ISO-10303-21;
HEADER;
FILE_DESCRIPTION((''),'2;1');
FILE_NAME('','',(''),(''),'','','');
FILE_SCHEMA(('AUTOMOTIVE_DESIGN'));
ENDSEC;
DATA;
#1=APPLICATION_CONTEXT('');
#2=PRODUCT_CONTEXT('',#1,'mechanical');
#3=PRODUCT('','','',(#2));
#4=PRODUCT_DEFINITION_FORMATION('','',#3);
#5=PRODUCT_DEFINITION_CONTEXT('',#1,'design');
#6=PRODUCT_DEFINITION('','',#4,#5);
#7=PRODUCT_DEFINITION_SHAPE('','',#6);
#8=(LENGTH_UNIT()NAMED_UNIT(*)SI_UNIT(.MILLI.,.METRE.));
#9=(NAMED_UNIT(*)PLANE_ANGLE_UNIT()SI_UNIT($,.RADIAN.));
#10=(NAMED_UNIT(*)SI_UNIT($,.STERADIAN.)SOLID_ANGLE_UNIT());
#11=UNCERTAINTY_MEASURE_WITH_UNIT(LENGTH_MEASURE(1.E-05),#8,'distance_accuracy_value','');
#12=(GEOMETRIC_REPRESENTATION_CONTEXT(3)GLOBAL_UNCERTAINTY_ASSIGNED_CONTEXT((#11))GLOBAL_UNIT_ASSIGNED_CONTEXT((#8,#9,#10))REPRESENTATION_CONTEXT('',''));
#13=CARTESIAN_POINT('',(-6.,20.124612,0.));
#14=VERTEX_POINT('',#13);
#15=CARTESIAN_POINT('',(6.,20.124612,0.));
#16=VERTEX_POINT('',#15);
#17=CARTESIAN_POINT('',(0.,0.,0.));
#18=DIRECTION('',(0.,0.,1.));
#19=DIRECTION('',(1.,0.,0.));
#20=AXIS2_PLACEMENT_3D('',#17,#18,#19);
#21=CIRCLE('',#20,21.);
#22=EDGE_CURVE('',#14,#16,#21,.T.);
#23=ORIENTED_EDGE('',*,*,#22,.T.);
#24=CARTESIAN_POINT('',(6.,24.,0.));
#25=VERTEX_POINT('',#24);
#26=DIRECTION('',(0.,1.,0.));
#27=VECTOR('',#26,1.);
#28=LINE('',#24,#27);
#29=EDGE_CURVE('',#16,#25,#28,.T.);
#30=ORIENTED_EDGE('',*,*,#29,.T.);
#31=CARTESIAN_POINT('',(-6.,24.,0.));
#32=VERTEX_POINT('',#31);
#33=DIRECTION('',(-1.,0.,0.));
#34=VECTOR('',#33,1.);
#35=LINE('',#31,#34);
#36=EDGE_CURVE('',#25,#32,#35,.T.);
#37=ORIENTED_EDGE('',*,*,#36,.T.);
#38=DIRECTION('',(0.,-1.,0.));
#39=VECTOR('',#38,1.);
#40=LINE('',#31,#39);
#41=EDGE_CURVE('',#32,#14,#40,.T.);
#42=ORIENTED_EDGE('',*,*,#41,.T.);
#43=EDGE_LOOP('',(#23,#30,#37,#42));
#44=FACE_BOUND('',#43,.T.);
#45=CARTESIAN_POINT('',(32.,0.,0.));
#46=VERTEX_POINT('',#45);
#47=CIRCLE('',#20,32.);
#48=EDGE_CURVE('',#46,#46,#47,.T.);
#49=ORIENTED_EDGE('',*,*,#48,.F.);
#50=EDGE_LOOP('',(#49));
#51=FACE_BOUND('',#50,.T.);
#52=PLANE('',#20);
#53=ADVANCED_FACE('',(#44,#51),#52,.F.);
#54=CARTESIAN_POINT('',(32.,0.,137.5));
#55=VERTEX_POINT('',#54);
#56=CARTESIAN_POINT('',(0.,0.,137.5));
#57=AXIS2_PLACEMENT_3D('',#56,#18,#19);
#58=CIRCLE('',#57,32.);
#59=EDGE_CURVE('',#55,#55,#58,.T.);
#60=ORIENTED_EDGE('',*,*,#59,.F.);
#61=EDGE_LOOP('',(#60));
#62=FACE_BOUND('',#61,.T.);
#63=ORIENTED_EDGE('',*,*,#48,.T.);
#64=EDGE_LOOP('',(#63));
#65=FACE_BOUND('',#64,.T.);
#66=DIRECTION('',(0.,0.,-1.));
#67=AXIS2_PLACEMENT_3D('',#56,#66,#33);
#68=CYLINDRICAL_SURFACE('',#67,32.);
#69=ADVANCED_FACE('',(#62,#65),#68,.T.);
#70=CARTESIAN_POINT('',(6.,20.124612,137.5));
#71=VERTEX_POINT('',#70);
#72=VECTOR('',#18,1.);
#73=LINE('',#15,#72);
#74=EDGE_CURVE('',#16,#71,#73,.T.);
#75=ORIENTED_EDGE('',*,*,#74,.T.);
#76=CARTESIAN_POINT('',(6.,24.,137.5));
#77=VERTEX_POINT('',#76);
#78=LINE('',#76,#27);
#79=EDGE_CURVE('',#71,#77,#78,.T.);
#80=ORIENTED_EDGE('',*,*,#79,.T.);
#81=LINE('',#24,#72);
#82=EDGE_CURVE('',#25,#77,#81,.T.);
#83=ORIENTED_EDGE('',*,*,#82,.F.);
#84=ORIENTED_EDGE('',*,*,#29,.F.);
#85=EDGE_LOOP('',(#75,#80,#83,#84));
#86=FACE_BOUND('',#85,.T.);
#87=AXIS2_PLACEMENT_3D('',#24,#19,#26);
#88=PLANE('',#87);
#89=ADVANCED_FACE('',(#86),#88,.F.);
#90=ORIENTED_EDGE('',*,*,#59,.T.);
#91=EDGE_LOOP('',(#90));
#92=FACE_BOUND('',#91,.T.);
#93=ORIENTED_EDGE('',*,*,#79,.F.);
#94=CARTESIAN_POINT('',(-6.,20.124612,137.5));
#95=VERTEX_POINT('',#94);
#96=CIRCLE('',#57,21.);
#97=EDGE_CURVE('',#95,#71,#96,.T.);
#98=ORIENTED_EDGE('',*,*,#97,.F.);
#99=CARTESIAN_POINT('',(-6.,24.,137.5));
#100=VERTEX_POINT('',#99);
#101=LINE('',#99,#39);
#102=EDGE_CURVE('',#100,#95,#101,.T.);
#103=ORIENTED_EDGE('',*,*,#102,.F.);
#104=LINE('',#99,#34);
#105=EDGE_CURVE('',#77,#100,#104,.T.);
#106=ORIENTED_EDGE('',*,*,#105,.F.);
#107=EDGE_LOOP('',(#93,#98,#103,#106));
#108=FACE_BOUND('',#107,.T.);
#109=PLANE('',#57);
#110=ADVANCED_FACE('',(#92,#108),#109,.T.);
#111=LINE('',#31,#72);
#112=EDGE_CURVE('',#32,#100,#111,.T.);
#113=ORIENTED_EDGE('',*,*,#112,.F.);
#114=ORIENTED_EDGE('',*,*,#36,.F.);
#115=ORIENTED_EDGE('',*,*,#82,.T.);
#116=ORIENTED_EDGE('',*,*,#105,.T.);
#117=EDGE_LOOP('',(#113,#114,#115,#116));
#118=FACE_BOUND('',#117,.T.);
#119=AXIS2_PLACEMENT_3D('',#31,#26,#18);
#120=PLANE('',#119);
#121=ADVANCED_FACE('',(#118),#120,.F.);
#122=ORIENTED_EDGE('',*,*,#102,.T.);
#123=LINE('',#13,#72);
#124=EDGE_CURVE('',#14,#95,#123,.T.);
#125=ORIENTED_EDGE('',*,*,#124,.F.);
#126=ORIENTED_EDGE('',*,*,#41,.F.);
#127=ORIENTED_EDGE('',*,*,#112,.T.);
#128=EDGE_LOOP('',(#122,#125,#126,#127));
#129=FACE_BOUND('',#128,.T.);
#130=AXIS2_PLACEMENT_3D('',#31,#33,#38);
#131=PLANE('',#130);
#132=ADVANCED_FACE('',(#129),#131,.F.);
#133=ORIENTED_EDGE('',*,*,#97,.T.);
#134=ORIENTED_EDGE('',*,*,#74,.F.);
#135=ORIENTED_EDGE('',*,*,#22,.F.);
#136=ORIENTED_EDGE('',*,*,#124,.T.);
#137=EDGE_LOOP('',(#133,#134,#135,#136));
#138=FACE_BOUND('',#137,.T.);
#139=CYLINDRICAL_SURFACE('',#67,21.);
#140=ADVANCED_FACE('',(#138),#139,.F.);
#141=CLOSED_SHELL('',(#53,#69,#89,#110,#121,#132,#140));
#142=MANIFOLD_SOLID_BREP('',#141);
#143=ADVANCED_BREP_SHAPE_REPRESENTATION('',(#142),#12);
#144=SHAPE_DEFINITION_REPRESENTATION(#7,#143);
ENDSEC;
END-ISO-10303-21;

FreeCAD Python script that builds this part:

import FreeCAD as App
import Part
import Sketcher

V = App.Vector
Q = App.Units.Quantity

doc = App.newDocument("Part")
params = doc.addObject("Spreadsheet::Sheet", "Params")
for row, (alias, value) in enumerate([
    ("sketch1_diameter", "64 mm"),
    ("sketch1_diameter2", "42 mm"),
    ("pad1_length", "137.5 mm"),
    ("sketch2_width", "12 mm"),
], start=1):
    params.set(f"A{row}", alias)
    params.set(f"B{row}", "=" + value)
    params.setAlias(f"B{row}", alias)

body = doc.addObject("PartDesign::Body", "Body")

sketch1 = body.newObject("Sketcher::SketchObject", "Sketch")
sketch1.AttachmentSupport = (doc.getObject("XY_Plane"), [""])
sketch1.MapMode = "FlatFace"
sketch1.addGeometry(Part.Circle(V(0, 0, 0), V(0, 0, 1), 32), False)
sketch1.addGeometry(Part.Circle(V(0, 0, 0), V(0, 0, 1), 21), False)
sketch1.addConstraint(Sketcher.Constraint("Coincident", 0, 3, -1, 1))
sketch1.addConstraint(Sketcher.Constraint("Coincident", 1, 3, -1, 1))
sketch1.addConstraint(Sketcher.Constraint("Diameter", 0, Q("64 mm")))
sketch1.addConstraint(Sketcher.Constraint("Diameter", 1, Q("42 mm")))
sketch1.setExpression("Constraints[2]", "Params.sketch1_diameter")
sketch1.setExpression("Constraints[3]", "Params.sketch1_diameter2")
pad1 = body.newObject("PartDesign::Pad", "Pad")
pad1.Profile = sketch1
pad1.setExpression("Length", "Params.pad1_length")

sketch2 = body.newObject("Sketcher::SketchObject", "Sketch001")
sketch2.AttachmentSupport = (doc.getObject("XY_Plane"), [""])
sketch2.MapMode = "FlatFace"
sketch2.AttachmentOffset = App.Placement(V(0, 0, 137.5), App.Rotation())
sketch2.addGeometry(Part.LineSegment(V(-6, 24, 0), V(-6, 20.1, 0)), False)
sketch2.addGeometry(Part.LineSegment(V(-6, 20.1, 0), V(6, 20.1, 0)), False)
sketch2.addGeometry(Part.LineSegment(V(6, 20.1, 0), V(6, 24, 0)), False)
sketch2.addGeometry(Part.LineSegment(V(6, 24, 0), V(-6, 24, 0)), False)
sketch2.addConstraint(Sketcher.Constraint("Coincident", 0, 2, 1, 1))
sketch2.addConstraint(Sketcher.Constraint("Coincident", 1, 2, 2, 1))
sketch2.addConstraint(Sketcher.Constraint("Coincident", 2, 2, 3, 1))
sketch2.addConstraint(Sketcher.Constraint("Coincident", 3, 2, 0, 1))
sketch2.addConstraint(Sketcher.Constraint("Vertical", 0))
sketch2.addConstraint(Sketcher.Constraint("Horizontal", 1))
sketch2.addConstraint(Sketcher.Constraint("Vertical", 2))
sketch2.addConstraint(Sketcher.Constraint("Horizontal", 3))
sketch2.addConstraint(Sketcher.Constraint("DistanceX", 1, 1, 1, 2, Q("12 mm")))
sketch2.addConstraint(Sketcher.Constraint("DistanceX", 0, 2, -1, 1, Q("6 mm")))
sketch2.addConstraint(Sketcher.Constraint("DistanceY", -1, 1, 2, 2, Q("24 mm")))
sketch2.addConstraint(Sketcher.Constraint("DistanceY", 0, 2, 0, 1, Q("3.875388 mm")))
sketch2.setExpression("Constraints[8]", "Params.sketch2_width")
pocket1 = body.newObject("PartDesign::Pocket", "Pocket")
pocket1.Profile = sketch2
pocket1.Type = "ThroughAll"

doc.recompute()
